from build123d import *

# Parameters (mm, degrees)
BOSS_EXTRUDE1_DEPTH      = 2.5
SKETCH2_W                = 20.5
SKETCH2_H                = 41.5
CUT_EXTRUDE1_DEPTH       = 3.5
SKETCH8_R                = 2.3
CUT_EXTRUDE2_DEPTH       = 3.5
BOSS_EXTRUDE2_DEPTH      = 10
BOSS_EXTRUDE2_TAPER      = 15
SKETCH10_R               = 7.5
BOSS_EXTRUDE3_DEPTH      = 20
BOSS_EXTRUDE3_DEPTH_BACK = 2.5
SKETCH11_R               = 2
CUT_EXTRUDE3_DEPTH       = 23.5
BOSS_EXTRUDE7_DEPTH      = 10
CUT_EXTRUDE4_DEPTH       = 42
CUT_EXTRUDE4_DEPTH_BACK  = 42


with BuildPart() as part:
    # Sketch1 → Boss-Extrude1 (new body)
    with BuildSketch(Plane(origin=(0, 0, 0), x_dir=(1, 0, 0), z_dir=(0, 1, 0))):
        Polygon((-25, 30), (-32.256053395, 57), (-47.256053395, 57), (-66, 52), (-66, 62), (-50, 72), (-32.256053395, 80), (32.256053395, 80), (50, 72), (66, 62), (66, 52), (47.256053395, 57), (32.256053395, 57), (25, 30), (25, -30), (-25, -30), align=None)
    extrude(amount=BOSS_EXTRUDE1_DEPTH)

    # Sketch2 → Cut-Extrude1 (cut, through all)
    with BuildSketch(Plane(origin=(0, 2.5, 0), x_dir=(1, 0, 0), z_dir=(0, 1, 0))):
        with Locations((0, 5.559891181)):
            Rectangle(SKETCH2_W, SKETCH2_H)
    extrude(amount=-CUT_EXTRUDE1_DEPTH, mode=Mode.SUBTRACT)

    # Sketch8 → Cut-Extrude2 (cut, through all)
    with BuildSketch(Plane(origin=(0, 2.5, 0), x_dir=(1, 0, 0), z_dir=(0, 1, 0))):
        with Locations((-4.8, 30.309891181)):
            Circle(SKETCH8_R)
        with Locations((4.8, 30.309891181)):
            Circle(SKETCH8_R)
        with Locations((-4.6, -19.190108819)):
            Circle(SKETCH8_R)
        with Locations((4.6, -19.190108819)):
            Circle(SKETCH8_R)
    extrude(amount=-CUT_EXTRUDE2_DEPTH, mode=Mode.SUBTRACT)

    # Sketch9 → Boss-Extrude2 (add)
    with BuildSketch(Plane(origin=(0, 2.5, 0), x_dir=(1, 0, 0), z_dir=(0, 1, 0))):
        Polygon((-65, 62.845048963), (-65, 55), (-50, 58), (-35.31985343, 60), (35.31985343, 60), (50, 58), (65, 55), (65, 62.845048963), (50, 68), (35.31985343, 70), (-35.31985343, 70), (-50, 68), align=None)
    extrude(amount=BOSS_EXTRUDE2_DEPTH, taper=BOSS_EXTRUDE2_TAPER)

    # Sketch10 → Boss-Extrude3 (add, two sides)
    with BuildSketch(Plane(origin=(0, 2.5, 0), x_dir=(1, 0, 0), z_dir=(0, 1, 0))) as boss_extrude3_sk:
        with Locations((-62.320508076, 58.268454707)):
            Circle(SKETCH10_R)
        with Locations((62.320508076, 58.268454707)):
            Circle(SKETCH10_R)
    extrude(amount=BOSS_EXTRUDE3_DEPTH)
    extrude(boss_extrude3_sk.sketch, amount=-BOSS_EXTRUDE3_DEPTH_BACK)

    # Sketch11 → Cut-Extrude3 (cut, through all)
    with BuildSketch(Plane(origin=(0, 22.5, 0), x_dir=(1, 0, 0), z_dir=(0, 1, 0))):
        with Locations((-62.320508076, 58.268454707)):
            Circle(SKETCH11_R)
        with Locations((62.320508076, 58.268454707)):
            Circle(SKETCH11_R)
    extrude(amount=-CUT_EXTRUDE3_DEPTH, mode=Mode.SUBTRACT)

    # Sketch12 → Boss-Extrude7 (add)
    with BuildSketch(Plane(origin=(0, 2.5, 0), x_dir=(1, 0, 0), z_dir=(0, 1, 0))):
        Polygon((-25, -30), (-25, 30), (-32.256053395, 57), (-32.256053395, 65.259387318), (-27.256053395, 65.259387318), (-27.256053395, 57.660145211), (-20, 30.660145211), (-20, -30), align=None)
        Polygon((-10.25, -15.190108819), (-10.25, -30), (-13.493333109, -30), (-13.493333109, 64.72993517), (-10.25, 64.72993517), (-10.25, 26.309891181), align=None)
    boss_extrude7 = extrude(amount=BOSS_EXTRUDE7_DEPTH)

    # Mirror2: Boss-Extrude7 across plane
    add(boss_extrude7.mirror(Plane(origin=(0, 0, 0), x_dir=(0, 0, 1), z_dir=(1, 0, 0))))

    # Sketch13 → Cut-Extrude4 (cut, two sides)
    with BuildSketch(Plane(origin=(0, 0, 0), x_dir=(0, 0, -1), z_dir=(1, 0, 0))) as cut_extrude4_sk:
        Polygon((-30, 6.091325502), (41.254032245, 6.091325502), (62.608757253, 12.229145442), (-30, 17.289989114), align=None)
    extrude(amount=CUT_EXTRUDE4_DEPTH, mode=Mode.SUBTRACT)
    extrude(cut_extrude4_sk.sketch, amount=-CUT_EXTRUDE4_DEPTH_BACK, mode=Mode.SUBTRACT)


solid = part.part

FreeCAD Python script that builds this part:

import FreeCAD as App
import Part
import Sketcher
Q = App.Units.Quantity

doc = App.newDocument("Part")
body = doc.addObject("PartDesign::Body", "Body")

sketch1 = doc.addObject("Sketcher::SketchObject", "Sketch")
body.addObject(sketch1)
sketch1.AttachmentSupport = (doc.XZ_Plane, [""])
sketch1.MapMode = "FlatFace"
sketch1.addGeometry([
    Part.LineSegment(App.Vector(-32, -57, 0), App.Vector(-25, -30, 0)),
    Part.LineSegment(App.Vector(-25, -30, 0), App.Vector(-25, 30, 0)),
    Part.LineSegment(App.Vector(-25, 30, 0), App.Vector(25, 30, 0)),
    Part.LineSegment(App.Vector(25, 30, 0), App.Vector(25, -30, 0)),
    Part.LineSegment(App.Vector(25, -30, 0), App.Vector(32, -57, 0)),
    Part.LineSegment(App.Vector(32, -57, 0), App.Vector(47, -57, 0)),
    Part.LineSegment(App.Vector(47, -57, 0), App.Vector(66, -52, 0)),
    Part.LineSegment(App.Vector(66, -52, 0), App.Vector(66, -62, 0)),
    Part.LineSegment(App.Vector(66, -62, 0), App.Vector(50, -72, 0)),
    Part.LineSegment(App.Vector(50, -72, 0), App.Vector(32, -80, 0)),
    Part.LineSegment(App.Vector(32, -80, 0), App.Vector(-32, -80, 0)),
    Part.LineSegment(App.Vector(-32, -80, 0), App.Vector(-50, -72, 0)),
    Part.LineSegment(App.Vector(-50, -72, 0), App.Vector(-66, -62, 0)),
    Part.LineSegment(App.Vector(-66, -62, 0), App.Vector(-66, -52, 0)),
    Part.LineSegment(App.Vector(-66, -52, 0), App.Vector(-47, -57, 0)),
    Part.LineSegment(App.Vector(-47, -57, 0), App.Vector(-32, -57, 0)),
], False)
sketch1.addConstraint([
    Sketcher.Constraint("Coincident", 0, 2, 1, 1),
    Sketcher.Constraint("Coincident", 1, 2, 2, 1),
    Sketcher.Constraint("Coincident", 2, 2, 3, 1),
    Sketcher.Constraint("Coincident", 3, 2, 4, 1),
    Sketcher.Constraint("Coincident", 4, 2, 5, 1),
    Sketcher.Constraint("Coincident", 5, 2, 6, 1),
    Sketcher.Constraint("Coincident", 6, 2, 7, 1),
    Sketcher.Constraint("Coincident", 7, 2, 8, 1),
    Sketcher.Constraint("Coincident", 8, 2, 9, 1),
    Sketcher.Constraint("Coincident", 9, 2, 10, 1),
    Sketcher.Constraint("Coincident", 10, 2, 11, 1),
    Sketcher.Constraint("Coincident", 11, 2, 12, 1),
    Sketcher.Constraint("Coincident", 12, 2, 13, 1),
    Sketcher.Constraint("Coincident", 13, 2, 14, 1),
    Sketcher.Constraint("Coincident", 14, 2, 15, 1),
    Sketcher.Constraint("Coincident", 15, 2, 0, 1),
    Sketcher.Constraint("Vertical", 1),
    Sketcher.Constraint("Horizontal", 2),
    Sketcher.Constraint("Vertical", 3),
    Sketcher.Constraint("Horizontal", 5),
    Sketcher.Constraint("Vertical", 7),
    Sketcher.Constraint("Horizontal", 10),
    Sketcher.Constraint("Vertical", 13),
    Sketcher.Constraint("Horizontal", 15),
    Sketcher.Constraint("Symmetric", 0, 2, 2, 2, -1, 1),
    Sketcher.Constraint("Symmetric", 8, 2, 11, 2, -2),
    Sketcher.Constraint("Symmetric", 7, 2, 12, 2, -2),
    Sketcher.Constraint("Symmetric", 5, 2, 14, 2, -2),
    Sketcher.Constraint("Horizontal", 0, 2, 3, 2),
    Sketcher.Constraint("Horizontal", 6, 2, 13, 2),
    Sketcher.Constraint("Vertical", 4, 2, 9, 2),
    Sketcher.Constraint("Vertical", 10, 2, 15, 2),
    Sketcher.Constraint("Equal", 5, 15),
    Sketcher.Constraint("DistanceX", 2, 1, 2, 2, Q("50 mm")),
    Sketcher.Constraint("DistanceX", 5, 1, 5, 2, Q("15 mm")),
    Sketcher.Constraint("DistanceY", 1, 1, 1, 2, Q("60 mm")),
    Sketcher.Constraint("DistanceY", 7, 2, 7, 1, Q("10 mm")),
    Sketcher.Constraint("DistanceY", 4, 2, -1, 1, Q("57 mm")),
    Sketcher.Constraint("DistanceX", -1, 1, 6, 2, Q("66 mm")),
    Sketcher.Constraint("DistanceY", 6, 2, -1, 1, Q("52 mm")),
    Sketcher.Constraint("DistanceX", -1, 1, 8, 2, Q("50 mm")),
    Sketcher.Constraint("DistanceY", 8, 2, -1, 1, Q("72 mm")),
    Sketcher.Constraint("DistanceY", 9, 2, -1, 1, Q("80 mm")),
    Sketcher.Constraint("Distance", 0, Q("27.95801 mm")),
])
pad1 = doc.addObject("PartDesign::Pad", "Pad")
body.addObject(pad1)
pad1.Profile = sketch1
pad1.Length = 2.5
pad1.Reversed = True

sketch2 = doc.addObject("Sketcher::SketchObject", "Sketch001")
body.addObject(sketch2)
sketch2.AttachmentSupport = (doc.XZ_Plane, [""])
sketch2.MapMode = "FlatFace"
sketch2.AttachmentOffset = App.Placement(App.Vector(0, 0, -2.5), App.Rotation())
sketch2.addGeometry([
    Part.LineSegment(App.Vector(-10, -26, 0), App.Vector(-10, 15, 0)),
    Part.LineSegment(App.Vector(-10, 15, 0), App.Vector(10, 15, 0)),
    Part.LineSegment(App.Vector(10, 15, 0), App.Vector(10, -26, 0)),
    Part.LineSegment(App.Vector(10, -26, 0), App.Vector(-10, -26, 0)),
], False)
sketch2.addConstraint([
    Sketcher.Constraint("Coincident", 0, 2, 1, 1),
    Sketcher.Constraint("Coincident", 1, 2, 2, 1),
    Sketcher.Constraint("Coincident", 2, 2, 3, 1),
    Sketcher.Constraint("Coincident", 3, 2, 0, 1),
    Sketcher.Constraint("Vertical", 0),
    Sketcher.Constraint("Horizontal", 1),
    Sketcher.Constraint("Vertical", 2),
    Sketcher.Constraint("Horizontal", 3),
    Sketcher.Constraint("DistanceX", 1, 1, 1, 2, Q("20.5 mm")),
    Sketcher.Constraint("DistanceY", 0, 1, 0, 2, Q("41.5 mm")),
    Sketcher.Constraint("DistanceX", 0, 2, -1, 1, Q("10.25 mm")),
    Sketcher.Constraint("DistanceY", -1, 1, 0, 2, Q("15.190109 mm")),
])
pocket1 = doc.addObject("PartDesign::Pocket", "Pocket")
body.addObject(pocket1)
pocket1.Profile = sketch2
pocket1.Type = "ThroughAll"
pocket1.Reversed = True

sketch3 = doc.addObject("Sketcher::SketchObject", "Sketch002")
body.addObject(sketch3)
sketch3.AttachmentSupport = (doc.XZ_Plane, [""])
sketch3.MapMode = "FlatFace"
sketch3.AttachmentOffset = App.Placement(App.Vector(0, 0, -2.5), App.Rotation())
sketch3.addGeometry([
    Part.Circle(App.Vector(-4.8, -30.3, 0), App.Vector(0, 0, 1), 2.3),
    Part.Circle(App.Vector(4.8, -30.3, 0), App.Vector(0, 0, 1), 2.3),
    Part.Circle(App.Vector(-4.6, 19.2, 0), App.Vector(0, 0, 1), 2.3),
    Part.Circle(App.Vector(4.6, 19.2, 0), App.Vector(0, 0, 1), 2.3),
], False)
sketch3.addConstraint([
    Sketcher.Constraint("Equal", 0, 1),
    Sketcher.Constraint("Equal", 1, 2),
    Sketcher.Constraint("Equal", 2, 3),
    Sketcher.Constraint("Symmetric", 0, 3, 1, 3, -2),
    Sketcher.Constraint("Symmetric", 2, 3, 3, 3, -2),
    Sketcher.Constraint("Diameter", 0, Q("4.6 mm")),
    Sketcher.Constraint("DistanceX", 0, 3, -1, 1, Q("4.8 mm")),
    Sketcher.Constraint("DistanceX", 2, 3, -1, 1, Q("4.6 mm")),
    Sketcher.Constraint("DistanceY", 0, 3, 2, 3, Q("49.5 mm")),
    Sketcher.Constraint("DistanceY", 0, 3, -1, 1, Q("30.309891 mm")),
])
pocket2 = doc.addObject("PartDesign::Pocket", "Pocket001")
body.addObject(pocket2)
pocket2.Profile = sketch3
pocket2.Type = "ThroughAll"
pocket2.Reversed = True

sketch4 = doc.addObject("Sketcher::SketchObject", "Sketch003")
body.addObject(sketch4)
sketch4.AttachmentSupport = (doc.XZ_Plane, [""])
sketch4.MapMode = "FlatFace"
sketch4.AttachmentOffset = App.Placement(App.Vector(0, 0, -2.5), App.Rotation())
sketch4.addGeometry([
    Part.LineSegment(App.Vector(-65, -63, 0), App.Vector(-65, -55, 0)),
    Part.LineSegment(App.Vector(-65, -55, 0), App.Vector(-50, -58, 0)),
    Part.LineSegment(App.Vector(-50, -58, 0), App.Vector(-35, -60, 0)),
    Part.LineSegment(App.Vector(-35, -60, 0), App.Vector(35, -60, 0)),
    Part.LineSegment(App.Vector(35, -60, 0), App.Vector(50, -58, 0)),
    Part.LineSegment(App.Vector(50, -58, 0), App.Vector(65, -55, 0)),
    Part.LineSegment(App.Vector(65, -55, 0), App.Vector(65, -63, 0)),
    Part.LineSegment(App.Vector(65, -63, 0), App.Vector(50, -68, 0)),
    Part.LineSegment(App.Vector(50, -68, 0), App.Vector(35, -70, 0)),
    Part.LineSegment(App.Vector(35, -70, 0), App.Vector(-35, -70, 0)),
    Part.LineSegment(App.Vector(-35, -70, 0), App.Vector(-50, -68, 0)),
    Part.LineSegment(App.Vector(-50, -68, 0), App.Vector(-65, -63, 0)),
], False)
sketch4.addConstraint([
    Sketcher.Constraint("Coincident", 0, 2, 1, 1),
    Sketcher.Constraint("Coincident", 1, 2, 2, 1),
    Sketcher.Constraint("Coincident", 2, 2, 3, 1),
    Sketcher.Constraint("Coincident", 3, 2, 4, 1),
    Sketcher.Constraint("Coincident", 4, 2, 5, 1),
    Sketcher.Constraint("Coincident", 5, 2, 6, 1),
    Sketcher.Constraint("Coincident", 6, 2, 7, 1),
    Sketcher.Constraint("Coincident", 7, 2, 8, 1),
    Sketcher.Constraint("Coincident", 8, 2, 9, 1),
    Sketcher.Constraint("Coincident", 9, 2, 10, 1),
    Sketcher.Constraint("Coincident", 10, 2, 11, 1),
    Sketcher.Constraint("Coincident", 11, 2, 0, 1),
    Sketcher.Constraint("Vertical", 0),
    Sketcher.Constraint("Horizontal", 3),
    Sketcher.Constraint("Vertical", 6),
    Sketcher.Constraint("Horizontal", 9),
    Sketcher.Constraint("Symmetric", 1, 2, 4, 2, -2),
    Sketcher.Constraint("Symmetric", 0, 2, 5, 2, -2),
    Sketcher.Constraint("Symmetric", 7, 2, 10, 2, -2),
    Sketcher.Constraint("Parallel", 4, 8),
    Sketcher.Constraint("Parallel", 2, 10),
    Sketcher.Constraint("Horizontal", 6, 2, 11, 2),
    Sketcher.Constraint("Vertical", 4, 2, 7, 2),
    Sketcher.Constraint("Vertical", 3, 2, 8, 2),
    Sketcher.Constraint("Equal", 2, 4),
    Sketcher.Constraint("DistanceX", 0, 2, -1, 1, Q("65 mm")),
    Sketcher.Constraint("DistanceY", 0, 2, -1, 1, Q("55 mm")),
    Sketcher.Constraint("DistanceX", 1, 2, -1, 1, Q("50 mm")),
    Sketcher.Constraint("DistanceY", 1, 2, -1, 1, Q("58 mm")),
    Sketcher.Constraint("DistanceY", 2, 2, -1, 1, Q("60 mm")),
    Sketcher.Constraint("DistanceY", 7, 2, -1, 1, Q("68 mm")),
    Sketcher.Constraint("DistanceY", 0, 1, 0, 2, Q("7.845049 mm")),
    Sketcher.Constraint("Distance", 2, Q("14.815759 mm")),
])
pad2 = doc.addObject("PartDesign::Pad", "Pad001")
body.addObject(pad2)
pad2.Profile = sketch4
pad2.Length = 10
pad2.Reversed = True
pad2.TaperAngle = -15

sketch5 = doc.addObject("Sketcher::SketchObject", "Sketch004")
body.addObject(sketch5)
sketch5.AttachmentSupport = (doc.XZ_Plane, [""])
sketch5.MapMode = "FlatFace"
sketch5.AttachmentOffset = App.Placement(App.Vector(0, 0, -2.5), App.Rotation())
sketch5.addGeometry([
    Part.Circle(App.Vector(-62, -58, 0), App.Vector(0, 0, 1), 8),
    Part.Circle(App.Vector(62, -58, 0), App.Vector(0, 0, 1), 8),
], False)
sketch5.addConstraint([
    Sketcher.Constraint("Equal", 0, 1),
    Sketcher.Constraint("Symmetric", 0, 3, 1, 3, -2),
    Sketcher.Constraint("Diameter", 0, Q("15 mm")),
    Sketcher.Constraint("DistanceX", 0, 3, -1, 1, Q("62.320508 mm")),
    Sketcher.Constraint("DistanceY", 0, 3, -1, 1, Q("58.268455 mm")),
])
pad3 = doc.addObject("PartDesign::Pad", "Pad002")
body.addObject(pad3)
pad3.Profile = sketch5
pad3.Type = "TwoLengths"
pad3.Length = 20
pad3.Length2 = 2.5
pad3.Reversed = True

sketch6 = doc.addObject("Sketcher::SketchObject", "Sketch005")
body.addObject(sketch6)
sketch6.AttachmentSupport = (doc.XZ_Plane, [""])
sketch6.MapMode = "FlatFace"
sketch6.AttachmentOffset = App.Placement(App.Vector(0, 0, -22.5), App.Rotation())
sketch6.addGeometry([
    Part.Circle(App.Vector(-62.3, -58.3, 0), App.Vector(0, 0, 1), 2),
    Part.Circle(App.Vector(62.3, -58.3, 0), App.Vector(0, 0, 1), 2),
], False)
sketch6.addConstraint([
    Sketcher.Constraint("Equal", 0, 1),
    Sketcher.Constraint("Symmetric", 0, 3, 1, 3, -2),
    Sketcher.Constraint("Diameter", 0, Q("4 mm")),
    Sketcher.Constraint("DistanceX", 0, 3, -1, 1, Q("62.320508 mm")),
    Sketcher.Constraint("DistanceY", 0, 3, -1, 1, Q("58.268455 mm")),
])
pocket3 = doc.addObject("PartDesign::Pocket", "Pocket002")
body.addObject(pocket3)
pocket3.Profile = sketch6
pocket3.Type = "ThroughAll"
pocket3.Reversed = True

sketch7 = doc.addObject("Sketcher::SketchObject", "Sketch006")
body.addObject(sketch7)
sketch7.AttachmentSupport = (doc.XZ_Plane, [""])
sketch7.MapMode = "FlatFace"
sketch7.AttachmentOffset = App.Placement(App.Vector(0, 0, -2.5), App.Rotation())
sketch7.addGeometry([
    Part.LineSegment(App.Vector(-25, -30, 0), App.Vector(-25, 30, 0)),
    Part.LineSegment(App.Vector(-25, 30, 0), App.Vector(-20, 30, 0)),
    Part.LineSegment(App.Vector(-20, 30, 0), App.Vector(-20, -30.7, 0)),
    Part.LineSegment(App.Vector(-20, -30.7, 0), App.Vector(-27.3, -57.7, 0)),
    Part.LineSegment(App.Vector(-27.3, -57.7, 0), App.Vector(-27.3, -65.3, 0)),
    Part.LineSegment(App.Vector(-27.3, -65.3, 0), App.Vector(-32.3, -65.3, 0)),
    Part.LineSegment(App.Vector(-32.3, -65.3, 0), App.Vector(-32.3, -57, 0)),
    Part.LineSegment(App.Vector(-32.3, -57, 0), App.Vector(-25, -30, 0)),
    Part.LineSegment(App.Vector(-10.2, 30, 0), App.Vector(-10.2, -64.7, 0)),
    Part.LineSegment(App.Vector(-10.2, -64.7, 0), App.Vector(-13.5, -64.7, 0)),
    Part.LineSegment(App.Vector(-13.5, -64.7, 0), App.Vector(-13.5, 30, 0)),
    Part.LineSegment(App.Vector(-13.5, 30, 0), App.Vector(-10.2, 30, 0)),
], False)
sketch7.addConstraint([
    Sketcher.Constraint("Coincident", 0, 2, 1, 1),
    Sketcher.Constraint("Coincident", 1, 2, 2, 1),
    Sketcher.Constraint("Coincident", 2, 2, 3, 1),
    Sketcher.Constraint("Coincident", 3, 2, 4, 1),
    Sketcher.Constraint("Coincident", 4, 2, 5, 1),
    Sketcher.Constraint("Coincident", 5, 2, 6, 1),
    Sketcher.Constraint("Coincident", 6, 2, 7, 1),
    Sketcher.Constraint("Coincident", 7, 2, 0, 1),
    Sketcher.Constraint("Coincident", 8, 2, 9, 1),
    Sketcher.Constraint("Coincident", 9, 2, 10, 1),
    Sketcher.Constraint("Coincident", 10, 2, 11, 1),
    Sketcher.Constraint("Coincident", 11, 2, 8, 1),
    Sketcher.Constraint("Vertical", 0),
    Sketcher.Constraint("Horizontal", 1),
    Sketcher.Constraint("Vertical", 2),
    Sketcher.Constraint("Vertical", 4),
    Sketcher.Constraint("Horizontal", 5),
    Sketcher.Constraint("Vertical", 6),
    Sketcher.Constraint("Vertical", 8),
    Sketcher.Constraint("Horizontal", 9),
    Sketcher.Constraint("Vertical", 10),
    Sketcher.Constraint("Horizontal", 11),
    Sketcher.Constraint("Parallel", 3, 7),
    Sketcher.Constraint("Horizontal", 1, 2, 10, 2),
    Sketcher.Constraint("Equal", 1, 5),
    Sketcher.Constraint("DistanceX", 1, 1, 1, 2, Q("5 mm")),
    Sketcher.Constraint("DistanceY", 0, 1, 0, 2, Q("60 mm")),
    Sketcher.Constraint("DistanceX", 0, 2, -1, 1, Q("25 mm")),
    Sketcher.Constraint("DistanceY", -1, 1, 0, 2, Q("30 mm")),
    Sketcher.Constraint("DistanceY", 6, 2, -1, 1, Q("57 mm")),
    Sketcher.Constraint("DistanceX", 8, 2, -1, 1, Q("10.25 mm")),
    Sketcher.Constraint("Distance", 3, Q("27.95801 mm")),
    Sketcher.Constraint("DistanceX", 9, 2, 9, 1, Q("3.243333 mm")),
    Sketcher.Constraint("DistanceY", 2, 2, 2, 1, Q("60.660145 mm")),
    Sketcher.Constraint("DistanceY", 4, 2, 4, 1, Q("7.599242 mm")),
    Sketcher.Constraint("DistanceY", 8, 2, 8, 1, Q("94.729935 mm")),
])
pad4 = doc.addObject("PartDesign::Pad", "Pad003")
body.addObject(pad4)
pad4.Profile = sketch7
pad4.Length = 10
pad4.Reversed = True
doc.recompute()

mirrored = doc.addObject("PartDesign::Mirrored", "Mirrored")
body.addObject(mirrored)
mirrored.Originals = [pad4]
mirrored.MirrorPlane = (doc.YZ_Plane, [""])
body.Tip = mirrored

sketch8 = doc.addObject("Sketcher::SketchObject", "Sketch007")
body.addObject(sketch8)
sketch8.AttachmentSupport = (doc.YZ_Plane, [""])
sketch8.MapMode = "FlatFace"
sketch8.addGeometry([
    Part.LineSegment(App.Vector(6, 30, 0), App.Vector(6, -41, 0)),
    Part.LineSegment(App.Vector(6, -41, 0), App.Vector(12, -63, 0)),
    Part.LineSegment(App.Vector(12, -63, 0), App.Vector(17, 30, 0)),
    Part.LineSegment(App.Vector(17, 30, 0), App.Vector(6, 30, 0)),
], False)
sketch8.addConstraint([
    Sketcher.Constraint("Coincident", 0, 2, 1, 1),
    Sketcher.Constraint("Coincident", 1, 2, 2, 1),
    Sketcher.Constraint("Coincident", 2, 2, 3, 1),
    Sketcher.Constraint("Coincident", 3, 2, 0, 1),
    Sketcher.Constraint("Vertical", 0),
    Sketcher.Constraint("Horizontal", 3),
    Sketcher.Constraint("DistanceY", -1, 1, 2, 2, Q("30 mm")),
    Sketcher.Constraint("DistanceX", 3, 2, 3, 1, Q("11.198664 mm")),
    Sketcher.Constraint("DistanceY", 0, 2, 0, 1, Q("71.254032 mm")),
    Sketcher.Constraint("DistanceX", -1, 1, 2, 2, Q("17.289989 mm")),
    Sketcher.Constraint("DistanceX", 0, 2, 1, 2, Q("6.13782 mm")),
    Sketcher.Constraint("Distance", 1, Q("22.219296 mm")),
])
pocket4 = doc.addObject("PartDesign::Pocket", "Pocket003")
body.addObject(pocket4)
pocket4.Profile = sketch8
pocket4.Type = "TwoLengths"
pocket4.Length = 42
pocket4.Length2 = 42
pocket4.Reversed = True

doc.recompute()
